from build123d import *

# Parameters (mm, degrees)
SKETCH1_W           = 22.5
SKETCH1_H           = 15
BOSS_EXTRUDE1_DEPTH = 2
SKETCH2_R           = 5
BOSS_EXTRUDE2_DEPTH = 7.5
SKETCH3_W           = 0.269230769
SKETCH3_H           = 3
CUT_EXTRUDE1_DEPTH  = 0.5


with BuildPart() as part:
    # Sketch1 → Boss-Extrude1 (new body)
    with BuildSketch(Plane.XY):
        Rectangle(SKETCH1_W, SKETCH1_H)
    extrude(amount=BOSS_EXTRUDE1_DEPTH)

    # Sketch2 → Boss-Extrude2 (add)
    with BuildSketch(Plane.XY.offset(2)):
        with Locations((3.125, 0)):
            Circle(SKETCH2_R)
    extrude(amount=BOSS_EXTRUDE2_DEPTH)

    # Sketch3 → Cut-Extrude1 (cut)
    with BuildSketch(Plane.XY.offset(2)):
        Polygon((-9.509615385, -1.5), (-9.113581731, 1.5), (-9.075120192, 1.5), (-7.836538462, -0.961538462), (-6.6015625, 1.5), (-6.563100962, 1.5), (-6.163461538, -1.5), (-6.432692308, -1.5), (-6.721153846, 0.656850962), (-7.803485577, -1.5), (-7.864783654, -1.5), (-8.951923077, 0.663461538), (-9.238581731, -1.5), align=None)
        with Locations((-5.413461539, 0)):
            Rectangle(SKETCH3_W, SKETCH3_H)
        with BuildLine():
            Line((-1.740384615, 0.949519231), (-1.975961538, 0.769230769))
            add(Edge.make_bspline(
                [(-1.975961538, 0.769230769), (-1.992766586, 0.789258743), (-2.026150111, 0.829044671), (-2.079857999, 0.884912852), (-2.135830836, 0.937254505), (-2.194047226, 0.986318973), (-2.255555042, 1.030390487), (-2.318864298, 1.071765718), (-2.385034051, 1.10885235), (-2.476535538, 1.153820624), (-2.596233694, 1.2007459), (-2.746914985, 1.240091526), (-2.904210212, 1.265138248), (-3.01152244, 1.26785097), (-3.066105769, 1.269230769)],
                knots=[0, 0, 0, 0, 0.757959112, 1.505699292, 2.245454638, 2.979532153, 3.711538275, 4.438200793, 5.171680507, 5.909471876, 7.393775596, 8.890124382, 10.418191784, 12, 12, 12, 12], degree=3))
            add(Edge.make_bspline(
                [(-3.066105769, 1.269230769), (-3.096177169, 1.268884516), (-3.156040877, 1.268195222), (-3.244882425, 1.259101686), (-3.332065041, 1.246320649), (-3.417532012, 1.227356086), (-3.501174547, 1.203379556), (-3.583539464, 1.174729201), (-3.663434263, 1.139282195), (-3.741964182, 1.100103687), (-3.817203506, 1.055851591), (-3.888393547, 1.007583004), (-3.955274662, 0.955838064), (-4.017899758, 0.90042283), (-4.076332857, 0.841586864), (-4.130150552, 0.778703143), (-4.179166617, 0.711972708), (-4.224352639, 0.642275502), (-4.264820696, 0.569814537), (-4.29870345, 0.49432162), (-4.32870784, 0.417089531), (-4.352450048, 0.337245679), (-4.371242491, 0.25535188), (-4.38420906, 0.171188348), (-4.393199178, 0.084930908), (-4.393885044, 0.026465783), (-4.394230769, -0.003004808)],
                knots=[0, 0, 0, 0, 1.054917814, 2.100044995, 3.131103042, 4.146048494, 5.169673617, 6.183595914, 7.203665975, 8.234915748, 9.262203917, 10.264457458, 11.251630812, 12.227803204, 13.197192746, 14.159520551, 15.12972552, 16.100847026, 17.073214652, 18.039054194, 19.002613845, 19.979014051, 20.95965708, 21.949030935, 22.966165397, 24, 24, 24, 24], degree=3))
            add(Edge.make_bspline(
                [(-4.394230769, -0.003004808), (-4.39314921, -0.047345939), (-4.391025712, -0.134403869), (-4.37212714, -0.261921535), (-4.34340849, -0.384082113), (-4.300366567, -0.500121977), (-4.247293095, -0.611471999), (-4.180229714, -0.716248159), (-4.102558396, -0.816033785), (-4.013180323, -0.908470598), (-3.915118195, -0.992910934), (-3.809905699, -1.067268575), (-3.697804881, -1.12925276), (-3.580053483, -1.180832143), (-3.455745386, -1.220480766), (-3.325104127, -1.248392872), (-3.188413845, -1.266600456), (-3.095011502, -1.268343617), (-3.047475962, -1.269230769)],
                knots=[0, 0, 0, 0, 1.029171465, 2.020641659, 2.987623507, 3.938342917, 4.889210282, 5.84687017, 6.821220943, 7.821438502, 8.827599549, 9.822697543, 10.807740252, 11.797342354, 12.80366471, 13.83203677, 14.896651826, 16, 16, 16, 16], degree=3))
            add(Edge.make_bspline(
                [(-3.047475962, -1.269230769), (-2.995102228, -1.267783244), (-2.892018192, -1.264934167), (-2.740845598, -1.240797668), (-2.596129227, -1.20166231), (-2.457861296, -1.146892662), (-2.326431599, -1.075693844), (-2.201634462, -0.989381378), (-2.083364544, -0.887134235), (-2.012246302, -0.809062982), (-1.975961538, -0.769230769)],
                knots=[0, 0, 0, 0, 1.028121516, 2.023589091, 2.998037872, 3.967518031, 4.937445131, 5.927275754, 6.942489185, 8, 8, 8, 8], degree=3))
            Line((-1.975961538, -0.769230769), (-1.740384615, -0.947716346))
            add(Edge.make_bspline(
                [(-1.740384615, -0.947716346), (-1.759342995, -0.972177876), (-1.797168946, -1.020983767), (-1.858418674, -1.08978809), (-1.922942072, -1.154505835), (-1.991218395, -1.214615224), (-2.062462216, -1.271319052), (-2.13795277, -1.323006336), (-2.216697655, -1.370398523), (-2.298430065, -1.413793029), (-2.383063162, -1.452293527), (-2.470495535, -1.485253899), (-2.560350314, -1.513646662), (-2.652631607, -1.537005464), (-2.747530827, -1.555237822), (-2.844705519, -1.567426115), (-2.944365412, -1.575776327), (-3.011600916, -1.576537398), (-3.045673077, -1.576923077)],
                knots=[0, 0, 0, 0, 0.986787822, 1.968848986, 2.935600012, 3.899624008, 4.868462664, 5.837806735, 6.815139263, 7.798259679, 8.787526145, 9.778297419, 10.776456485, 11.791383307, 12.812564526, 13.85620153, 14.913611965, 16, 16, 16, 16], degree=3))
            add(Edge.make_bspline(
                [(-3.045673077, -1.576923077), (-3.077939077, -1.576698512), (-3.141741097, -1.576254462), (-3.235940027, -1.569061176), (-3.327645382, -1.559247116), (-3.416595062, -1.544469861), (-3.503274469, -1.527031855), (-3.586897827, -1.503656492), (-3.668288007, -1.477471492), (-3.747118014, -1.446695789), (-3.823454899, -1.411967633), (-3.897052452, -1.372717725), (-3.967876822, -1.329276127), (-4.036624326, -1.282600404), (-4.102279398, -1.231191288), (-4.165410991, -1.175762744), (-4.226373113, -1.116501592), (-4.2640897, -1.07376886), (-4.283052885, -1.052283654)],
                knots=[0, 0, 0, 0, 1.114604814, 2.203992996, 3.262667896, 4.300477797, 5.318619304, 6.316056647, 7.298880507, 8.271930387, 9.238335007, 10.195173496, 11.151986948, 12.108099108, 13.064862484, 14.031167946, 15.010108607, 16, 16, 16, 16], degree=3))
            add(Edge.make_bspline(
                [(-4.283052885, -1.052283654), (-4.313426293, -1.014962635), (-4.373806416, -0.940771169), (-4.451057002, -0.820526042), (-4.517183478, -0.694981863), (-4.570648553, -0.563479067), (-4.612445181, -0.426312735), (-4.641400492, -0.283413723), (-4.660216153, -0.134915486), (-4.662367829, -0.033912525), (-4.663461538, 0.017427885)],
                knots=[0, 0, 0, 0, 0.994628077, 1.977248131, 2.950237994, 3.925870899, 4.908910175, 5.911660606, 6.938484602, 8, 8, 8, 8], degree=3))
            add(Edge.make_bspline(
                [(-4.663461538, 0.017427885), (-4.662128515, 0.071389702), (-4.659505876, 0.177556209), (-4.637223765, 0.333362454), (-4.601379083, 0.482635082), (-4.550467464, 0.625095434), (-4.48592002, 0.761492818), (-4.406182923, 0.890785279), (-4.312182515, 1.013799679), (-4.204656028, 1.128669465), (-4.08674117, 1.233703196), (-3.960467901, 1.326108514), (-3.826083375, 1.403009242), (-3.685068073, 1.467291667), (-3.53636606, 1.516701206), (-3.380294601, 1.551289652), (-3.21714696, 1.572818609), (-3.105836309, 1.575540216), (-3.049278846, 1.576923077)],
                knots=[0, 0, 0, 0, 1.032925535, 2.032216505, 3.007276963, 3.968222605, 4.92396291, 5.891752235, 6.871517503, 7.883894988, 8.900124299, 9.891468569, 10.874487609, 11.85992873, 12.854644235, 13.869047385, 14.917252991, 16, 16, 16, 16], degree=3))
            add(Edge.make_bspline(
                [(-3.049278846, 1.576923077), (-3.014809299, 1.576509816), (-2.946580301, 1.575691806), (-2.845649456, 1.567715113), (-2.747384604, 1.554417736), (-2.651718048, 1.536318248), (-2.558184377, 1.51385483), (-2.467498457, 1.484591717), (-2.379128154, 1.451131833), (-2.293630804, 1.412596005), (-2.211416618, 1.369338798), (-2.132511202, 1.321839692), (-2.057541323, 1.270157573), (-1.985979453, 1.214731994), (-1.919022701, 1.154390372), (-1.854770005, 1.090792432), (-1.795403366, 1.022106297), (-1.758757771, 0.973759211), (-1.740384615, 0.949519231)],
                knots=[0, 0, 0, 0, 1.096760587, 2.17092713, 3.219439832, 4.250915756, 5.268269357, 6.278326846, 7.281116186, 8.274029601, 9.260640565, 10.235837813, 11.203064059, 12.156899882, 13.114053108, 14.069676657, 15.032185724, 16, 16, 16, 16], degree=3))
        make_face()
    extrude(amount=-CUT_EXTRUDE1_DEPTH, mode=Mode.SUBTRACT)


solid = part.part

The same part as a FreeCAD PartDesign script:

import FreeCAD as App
import Part
import Sketcher
from FreeCAD import Vector


def add_polygon(sketch, points):
    """Adds a closed chain of lines whose ends are joined by coincident constraints."""
    first, n = sketch.GeometryCount, len(points)
    for a, b in zip(points, points[1:] + points[:1]):
        sketch.addGeometry(Part.LineSegment(App.Vector(*a, 0), App.Vector(*b, 0)), False)
    for i in range(n):
        sketch.addConstraint(Sketcher.Constraint("Coincident", first + i, 2, first + (i + 1) % n, 1))

doc = App.newDocument("Part")
body = doc.addObject("PartDesign::Body", "Body")

sketch1 = body.newObject("Sketcher::SketchObject", "Sketch")
sketch1.AttachmentSupport = (doc.getObject("XY_Plane"), [""])
sketch1.MapMode = "FlatFace"
add_polygon(sketch1, [(-11.25, 7.5), (-11.25, -7.5), (11.25, -7.5), (11.25, 7.5)])
sketch1.addConstraint([
    Sketcher.Constraint("Vertical", 0),
    Sketcher.Constraint("Horizontal", 1),
    Sketcher.Constraint("Vertical", 2),
    Sketcher.Constraint("Horizontal", 3),
    Sketcher.Constraint("Symmetric", 0, 2, 2, 2, -1, 1),
    Sketcher.Constraint("DistanceY", 0, 2, 0, 1, 15.0),
    Sketcher.Constraint("DistanceX", 1, 1, 1, 2, 22.5),
])
pad1 = body.newObject("PartDesign::Pad", "Pad")
pad1.Profile = sketch1
pad1.Length = 2

sketch2 = body.newObject("Sketcher::SketchObject", "Sketch001")
sketch2.AttachmentSupport = (doc.getObject("XY_Plane"), [""])
sketch2.MapMode = "FlatFace"
sketch2.AttachmentOffset = App.Placement(Vector(0, 0, 2), App.Rotation())
sketch2.addGeometry(Part.Circle(Vector(3.125, 0, 0), Vector(0, 0, 1), 5), False)
sketch2.addConstraint([
    Sketcher.Constraint("PointOnObject", 0, 3, -1),
    Sketcher.Constraint("Diameter", 0, 10.0),
    Sketcher.Constraint("DistanceX", -1, 1, 0, 3, 3.125),
])
pad2 = body.newObject("PartDesign::Pad", "Pad001")
pad2.Profile = sketch2
pad2.Length = 7.5

sketch3 = body.newObject("Sketcher::SketchObject", "Sketch002")
sketch3.AttachmentSupport = (doc.getObject("XY_Plane"), [""])
sketch3.MapMode = "FlatFace"
sketch3.AttachmentOffset = App.Placement(Vector(0, 0, 2), App.Rotation())
add_polygon(sketch3, [(-9.113582, 1.5), (-9.509615, -1.5), (-9.238582, -1.5), (-8.951923, 0.663462), (-7.864784, -1.5), (-7.803486, -1.5), (-6.721154, 0.656851), (-6.432692, -1.5), (-6.163462, -1.5), (-6.563101, 1.5), (-6.601562, 1.5), (-7.836538, -0.961538), (-9.07512, 1.5)])
add_polygon(sketch3, [(-5.548077, 1.5), (-5.548077, -1.5), (-5.278846, -1.5), (-5.278846, 1.5)])
sketch3.addGeometry(Part.LineSegment(Vector(-1.975962, 0.769231, 0), Vector(-1.740385, 0.949519, 0)), False)
sketch3.addGeometry(Part.BSplineCurve([Vector(-3.049279, 1.576923, 0), Vector(-3.014809, 1.57651, 0), Vector(-2.94658, 1.575692, 0), Vector(-2.845649, 1.567715, 0), Vector(-2.747385, 1.554418, 0), Vector(-2.651718, 1.536318, 0), Vector(-2.558184, 1.513855, 0), Vector(-2.467498, 1.484592, 0), Vector(-2.379128, 1.451132, 0), Vector(-2.293631, 1.412596, 0), Vector(-2.211417, 1.369339, 0), Vector(-2.132511, 1.32184, 0), Vector(-2.057541, 1.270158, 0), Vector(-1.985979, 1.214732, 0), Vector(-1.919023, 1.15439, 0), Vector(-1.85477, 1.090792, 0), Vector(-1.795403, 1.022106, 0), Vector(-1.758758, 0.973759, 0), Vector(-1.740385, 0.949519, 0)], [4, 1, 1, 1, 1, 1, 1, 1, 1, 1, 1, 1, 1, 1, 1, 1, 4], [0, 1.096760587, 2.17092713, 3.219439832, 4.250915756, 5.268269357, 6.278326846, 7.281116186, 8.274029601, 9.260640565, 10.235837813, 11.203064059, 12.156899882, 13.114053108, 14.069676657, 15.032185724, 16], False, 3, [1, 1, 1, 1, 1, 1, 1, 1, 1, 1, 1, 1, 1, 1, 1, 1, 1, 1, 1], False), False)
sketch3.addGeometry(Part.BSplineCurve([Vector(-4.663462, 0.017428, 0), Vector(-4.662129, 0.07139, 0), Vector(-4.659506, 0.177556, 0), Vector(-4.637224, 0.333362, 0), Vector(-4.601379, 0.482635, 0), Vector(-4.550467, 0.625095, 0), Vector(-4.48592, 0.761493, 0), Vector(-4.406183, 0.890785, 0), Vector(-4.312183, 1.0138, 0), Vector(-4.204656, 1.128669, 0), Vector(-4.086741, 1.233703, 0), Vector(-3.960468, 1.326109, 0), Vector(-3.826083, 1.403009, 0), Vector(-3.685068, 1.467292, 0), Vector(-3.536366, 1.516701, 0), Vector(-3.380295, 1.55129, 0), Vector(-3.217147, 1.572819, 0), Vector(-3.105836, 1.57554, 0), Vector(-3.049279, 1.576923, 0)], [4, 1, 1, 1, 1, 1, 1, 1, 1, 1, 1, 1, 1, 1, 1, 1, 4], [0, 1.032925535, 2.032216505, 3.007276963, 3.968222605, 4.92396291, 5.891752235, 6.871517503, 7.883894988, 8.900124299, 9.891468569, 10.874487609, 11.85992873, 12.854644235, 13.869047385, 14.917252991, 16], False, 3, [1, 1, 1, 1, 1, 1, 1, 1, 1, 1, 1, 1, 1, 1, 1, 1, 1, 1, 1], False), False)
sketch3.addGeometry(Part.BSplineCurve([Vector(-4.283053, -1.052284, 0), Vector(-4.313426, -1.014963, 0), Vector(-4.373806, -0.940771, 0), Vector(-4.451057, -0.820526, 0), Vector(-4.517183, -0.694982, 0), Vector(-4.570649, -0.563479, 0), Vector(-4.612445, -0.426313, 0), Vector(-4.6414, -0.283414, 0), Vector(-4.660216, -0.134915, 0), Vector(-4.662368, -0.033913, 0), Vector(-4.663462, 0.017428, 0)], [4, 1, 1, 1, 1, 1, 1, 1, 4], [0, 0.994628077, 1.977248131, 2.950237994, 3.925870899, 4.908910175, 5.911660606, 6.938484602, 8], False, 3, [1, 1, 1, 1, 1, 1, 1, 1, 1, 1, 1], False), False)
sketch3.addGeometry(Part.BSplineCurve([Vector(-3.045673, -1.576923, 0), Vector(-3.077939, -1.576699, 0), Vector(-3.141741, -1.576254, 0), Vector(-3.23594, -1.569061, 0), Vector(-3.327645, -1.559247, 0), Vector(-3.416595, -1.54447, 0), Vector(-3.503274, -1.527032, 0), Vector(-3.586898, -1.503656, 0), Vector(-3.668288, -1.477471, 0), Vector(-3.747118, -1.446696, 0), Vector(-3.823455, -1.411968, 0), Vector(-3.897052, -1.372718, 0), Vector(-3.967877, -1.329276, 0), Vector(-4.036624, -1.2826, 0), Vector(-4.102279, -1.231191, 0), Vector(-4.165411, -1.175763, 0), Vector(-4.226373, -1.116502, 0), Vector(-4.26409, -1.073769, 0), Vector(-4.283053, -1.052284, 0)], [4, 1, 1, 1, 1, 1, 1, 1, 1, 1, 1, 1, 1, 1, 1, 1, 4], [0, 1.114604814, 2.203992996, 3.262667896, 4.300477797, 5.318619304, 6.316056647, 7.298880507, 8.271930387, 9.238335007, 10.195173496, 11.151986948, 12.108099108, 13.064862484, 14.031167946, 15.010108607, 16], False, 3, [1, 1, 1, 1, 1, 1, 1, 1, 1, 1, 1, 1, 1, 1, 1, 1, 1, 1, 1], False), False)
sketch3.addGeometry(Part.BSplineCurve([Vector(-1.740385, -0.947716, 0), Vector(-1.759343, -0.972178, 0), Vector(-1.797169, -1.020984, 0), Vector(-1.858419, -1.089788, 0), Vector(-1.922942, -1.154506, 0), Vector(-1.991218, -1.214615, 0), Vector(-2.062462, -1.271319, 0), Vector(-2.137953, -1.323006, 0), Vector(-2.216698, -1.370399, 0), Vector(-2.29843, -1.413793, 0), Vector(-2.383063, -1.452294, 0), Vector(-2.470496, -1.485254, 0), Vector(-2.56035, -1.513647, 0), Vector(-2.652632, -1.537005, 0), Vector(-2.747531, -1.555238, 0), Vector(-2.844706, -1.567426, 0), Vector(-2.944365, -1.575776, 0), Vector(-3.011601, -1.576537, 0), Vector(-3.045673, -1.576923, 0)], [4, 1, 1, 1, 1, 1, 1, 1, 1, 1, 1, 1, 1, 1, 1, 1, 4], [0, 0.986787822, 1.968848986, 2.935600012, 3.899624008, 4.868462664, 5.837806735, 6.815139263, 7.798259679, 8.787526145, 9.778297419, 10.776456485, 11.791383307, 12.812564526, 13.85620153, 14.913611965, 16], False, 3, [1, 1, 1, 1, 1, 1, 1, 1, 1, 1, 1, 1, 1, 1, 1, 1, 1, 1, 1], False), False)
sketch3.addGeometry(Part.LineSegment(Vector(-1.740385, -0.947716, 0), Vector(-1.975962, -0.769231, 0)), False)
sketch3.addGeometry(Part.BSplineCurve([Vector(-3.047476, -1.269231, 0), Vector(-2.995102, -1.267783, 0), Vector(-2.892018, -1.264934, 0), Vector(-2.740846, -1.240798, 0), Vector(-2.596129, -1.201662, 0), Vector(-2.457861, -1.146893, 0), Vector(-2.326432, -1.075694, 0), Vector(-2.201634, -0.989381, 0), Vector(-2.083365, -0.887134, 0), Vector(-2.012246, -0.809063, 0), Vector(-1.975962, -0.769231, 0)], [4, 1, 1, 1, 1, 1, 1, 1, 4], [0, 1.028121516, 2.023589091, 2.998037872, 3.967518031, 4.937445131, 5.927275754, 6.942489185, 8], False, 3, [1, 1, 1, 1, 1, 1, 1, 1, 1, 1, 1], False), False)
sketch3.addGeometry(Part.BSplineCurve([Vector(-4.394231, -0.003005, 0), Vector(-4.393149, -0.047346, 0), Vector(-4.391026, -0.134404, 0), Vector(-4.372127, -0.261922, 0), Vector(-4.343408, -0.384082, 0), Vector(-4.300367, -0.500122, 0), Vector(-4.247293, -0.611472, 0), Vector(-4.18023, -0.716248, 0), Vector(-4.102558, -0.816034, 0), Vector(-4.01318, -0.908471, 0), Vector(-3.915118, -0.992911, 0), Vector(-3.809906, -1.067269, 0), Vector(-3.697805, -1.129253, 0), Vector(-3.580053, -1.180832, 0), Vector(-3.455745, -1.220481, 0), Vector(-3.325104, -1.248393, 0), Vector(-3.188414, -1.2666, 0), Vector(-3.095012, -1.268344, 0), Vector(-3.047476, -1.269231, 0)], [4, 1, 1, 1, 1, 1, 1, 1, 1, 1, 1, 1, 1, 1, 1, 1, 4], [0, 1.029171465, 2.020641659, 2.987623507, 3.938342917, 4.889210282, 5.84687017, 6.821220943, 7.821438502, 8.827599549, 9.822697543, 10.807740252, 11.797342354, 12.80366471, 13.83203677, 14.896651826, 16], False, 3, [1, 1, 1, 1, 1, 1, 1, 1, 1, 1, 1, 1, 1, 1, 1, 1, 1, 1, 1], False), False)
sketch3.addGeometry(Part.BSplineCurve([Vector(-3.066106, 1.269231, 0), Vector(-3.096177, 1.268885, 0), Vector(-3.156041, 1.268195, 0), Vector(-3.244882, 1.259102, 0), Vector(-3.332065, 1.246321, 0), Vector(-3.417532, 1.227356, 0), Vector(-3.501175, 1.20338, 0), Vector(-3.583539, 1.174729, 0), Vector(-3.663434, 1.139282, 0), Vector(-3.741964, 1.100104, 0), Vector(-3.817204, 1.055852, 0), Vector(-3.888394, 1.007583, 0), Vector(-3.955275, 0.955838, 0), Vector(-4.0179, 0.900423, 0), Vector(-4.076333, 0.841587, 0), Vector(-4.130151, 0.778703, 0), Vector(-4.179167, 0.711973, 0), Vector(-4.224353, 0.642276, 0), Vector(-4.264821, 0.569815, 0), Vector(-4.298703, 0.494322, 0), Vector(-4.328708, 0.41709, 0), Vector(-4.35245, 0.337246, 0), Vector(-4.371242, 0.255352, 0), Vector(-4.384209, 0.171188, 0), Vector(-4.393199, 0.084931, 0), Vector(-4.393885, 0.026466, 0), Vector(-4.394231, -0.003005, 0)], [4, 1, 1, 1, 1, 1, 1, 1, 1, 1, 1, 1, 1, 1, 1, 1, 1, 1, 1, 1, 1, 1, 1, 1, 4], [0, 1.054917814, 2.100044995, 3.131103042, 4.146048494, 5.169673617, 6.183595914, 7.203665975, 8.234915748, 9.262203917, 10.264457458, 11.251630812, 12.227803204, 13.197192746, 14.159520551, 15.12972552, 16.100847026, 17.073214652, 18.039054194, 19.002613845, 19.979014051, 20.95965708, 21.949030935, 22.966165397, 24], False, 3, [1, 1, 1, 1, 1, 1, 1, 1, 1, 1, 1, 1, 1, 1, 1, 1, 1, 1, 1, 1, 1, 1, 1, 1, 1, 1, 1], False), False)
sketch3.addGeometry(Part.BSplineCurve([Vector(-1.975962, 0.769231, 0), Vector(-1.992767, 0.789259, 0), Vector(-2.02615, 0.829045, 0), Vector(-2.079858, 0.884913, 0), Vector(-2.135831, 0.937255, 0), Vector(-2.194047, 0.986319, 0), Vector(-2.255555, 1.03039, 0), Vector(-2.318864, 1.071766, 0), Vector(-2.385034, 1.108852, 0), Vector(-2.476536, 1.153821, 0), Vector(-2.596234, 1.200746, 0), Vector(-2.746915, 1.240092, 0), Vector(-2.90421, 1.265138, 0), Vector(-3.011522, 1.267851, 0), Vector(-3.066106, 1.269231, 0)], [4, 1, 1, 1, 1, 1, 1, 1, 1, 1, 1, 1, 4], [0, 0.757959112, 1.505699292, 2.245454638, 2.979532153, 3.711538275, 4.438200793, 5.171680507, 5.909471876, 7.393775596, 8.890124382, 10.418191784, 12], False, 3, [1, 1, 1, 1, 1, 1, 1, 1, 1, 1, 1, 1, 1, 1, 1], False), False)
sketch3.addConstraint([
    Sketcher.Constraint("Block", 18),
    Sketcher.Constraint("Block", 19),
    Sketcher.Constraint("Block", 20),
    Sketcher.Constraint("Block", 21),
    Sketcher.Constraint("Block", 22),
    Sketcher.Constraint("Block", 24),
    Sketcher.Constraint("Block", 25),
    Sketcher.Constraint("Block", 26),
    Sketcher.Constraint("Block", 27),
    Sketcher.Constraint("Coincident", 17, 2, 18, 2),
    Sketcher.Constraint("Coincident", 22, 1, 23, 1),
    Sketcher.Constraint("Coincident", 23, 2, 24, 2),
    Sketcher.Constraint("Coincident", 27, 1, 17, 1),
    Sketcher.Constraint("Horizontal", 1),
    Sketcher.Constraint("Horizontal", 4),
    Sketcher.Constraint("Horizontal", 7),
    Sketcher.Constraint("Horizontal", 9),
    Sketcher.Constraint("Horizontal", 12),
    Sketcher.Constraint("Vertical", 13),
    Sketcher.Constraint("Horizontal", 14),
    Sketcher.Constraint("Vertical", 15),
    Sketcher.Constraint("Horizontal", 16),
    Sketcher.Constraint("Horizontal", 1, 2, 3, 2),
    Sketcher.Constraint("Horizontal", 4, 2, 6, 2),
    Sketcher.Constraint("Horizontal", 9, 2, 11, 2),
    Sketcher.Constraint("Horizontal", 7, 2, 13, 2),
    Sketcher.Constraint("Horizontal", 12, 2, 15, 2),
    Sketcher.Constraint("Equal", 9, 12),
    Sketcher.Constraint("Equal", 7, 14),
    Sketcher.Constraint("DistanceY", 13, 2, 13, 1, 3.0),
    Sketcher.Constraint("DistanceY", 0, 2, -1, 1, 1.5),
    Sketcher.Constraint("DistanceX", 4, 1, 4, 2, 0.061298),
    Sketcher.Constraint("Distance", 8, 3.026502),
    Sketcher.Constraint("DistanceX", 7, 1, 7, 2, 0.269231),
    Sketcher.Constraint("DistanceX", 9, 2, 9, 1, 0.038462),
    Sketcher.Constraint("DistanceX", 8, 2, -1, 1, 6.563101),
    Sketcher.Constraint("DistanceX", 1, 2, 3, 2, 1.373798),
    Sketcher.Constraint("Distance", 2, 2.18237),
    Sketcher.Constraint("DistanceX", 1, 1, 1, 2, 0.271034),
    Sketcher.Constraint("DistanceX", 1, 2, -1, 1, 9.238582),
    Sketcher.Constraint("DistanceY", -1, 1, 2, 2, 0.663462),
    Sketcher.Constraint("DistanceY", -1, 1, 5, 2, 0.656851),
    Sketcher.Constraint("DistanceX", 10, 2, -1, 1, 7.836538),
    Sketcher.Constraint("DistanceY", 10, 2, -1, 1, 0.961538),
    Sketcher.Constraint("DistanceX", 11, 2, -1, 1, 9.07512),
    Sketcher.Constraint("DistanceX", 2, 2, 5, 2, 2.230769),
    Sketcher.Constraint("DistanceX", 4, 2, 13, 2, 2.255409),
])
pocket1 = body.newObject("PartDesign::Pocket", "Pocket")
pocket1.Profile = sketch3
pocket1.Length = 0.5

doc.recompute()
